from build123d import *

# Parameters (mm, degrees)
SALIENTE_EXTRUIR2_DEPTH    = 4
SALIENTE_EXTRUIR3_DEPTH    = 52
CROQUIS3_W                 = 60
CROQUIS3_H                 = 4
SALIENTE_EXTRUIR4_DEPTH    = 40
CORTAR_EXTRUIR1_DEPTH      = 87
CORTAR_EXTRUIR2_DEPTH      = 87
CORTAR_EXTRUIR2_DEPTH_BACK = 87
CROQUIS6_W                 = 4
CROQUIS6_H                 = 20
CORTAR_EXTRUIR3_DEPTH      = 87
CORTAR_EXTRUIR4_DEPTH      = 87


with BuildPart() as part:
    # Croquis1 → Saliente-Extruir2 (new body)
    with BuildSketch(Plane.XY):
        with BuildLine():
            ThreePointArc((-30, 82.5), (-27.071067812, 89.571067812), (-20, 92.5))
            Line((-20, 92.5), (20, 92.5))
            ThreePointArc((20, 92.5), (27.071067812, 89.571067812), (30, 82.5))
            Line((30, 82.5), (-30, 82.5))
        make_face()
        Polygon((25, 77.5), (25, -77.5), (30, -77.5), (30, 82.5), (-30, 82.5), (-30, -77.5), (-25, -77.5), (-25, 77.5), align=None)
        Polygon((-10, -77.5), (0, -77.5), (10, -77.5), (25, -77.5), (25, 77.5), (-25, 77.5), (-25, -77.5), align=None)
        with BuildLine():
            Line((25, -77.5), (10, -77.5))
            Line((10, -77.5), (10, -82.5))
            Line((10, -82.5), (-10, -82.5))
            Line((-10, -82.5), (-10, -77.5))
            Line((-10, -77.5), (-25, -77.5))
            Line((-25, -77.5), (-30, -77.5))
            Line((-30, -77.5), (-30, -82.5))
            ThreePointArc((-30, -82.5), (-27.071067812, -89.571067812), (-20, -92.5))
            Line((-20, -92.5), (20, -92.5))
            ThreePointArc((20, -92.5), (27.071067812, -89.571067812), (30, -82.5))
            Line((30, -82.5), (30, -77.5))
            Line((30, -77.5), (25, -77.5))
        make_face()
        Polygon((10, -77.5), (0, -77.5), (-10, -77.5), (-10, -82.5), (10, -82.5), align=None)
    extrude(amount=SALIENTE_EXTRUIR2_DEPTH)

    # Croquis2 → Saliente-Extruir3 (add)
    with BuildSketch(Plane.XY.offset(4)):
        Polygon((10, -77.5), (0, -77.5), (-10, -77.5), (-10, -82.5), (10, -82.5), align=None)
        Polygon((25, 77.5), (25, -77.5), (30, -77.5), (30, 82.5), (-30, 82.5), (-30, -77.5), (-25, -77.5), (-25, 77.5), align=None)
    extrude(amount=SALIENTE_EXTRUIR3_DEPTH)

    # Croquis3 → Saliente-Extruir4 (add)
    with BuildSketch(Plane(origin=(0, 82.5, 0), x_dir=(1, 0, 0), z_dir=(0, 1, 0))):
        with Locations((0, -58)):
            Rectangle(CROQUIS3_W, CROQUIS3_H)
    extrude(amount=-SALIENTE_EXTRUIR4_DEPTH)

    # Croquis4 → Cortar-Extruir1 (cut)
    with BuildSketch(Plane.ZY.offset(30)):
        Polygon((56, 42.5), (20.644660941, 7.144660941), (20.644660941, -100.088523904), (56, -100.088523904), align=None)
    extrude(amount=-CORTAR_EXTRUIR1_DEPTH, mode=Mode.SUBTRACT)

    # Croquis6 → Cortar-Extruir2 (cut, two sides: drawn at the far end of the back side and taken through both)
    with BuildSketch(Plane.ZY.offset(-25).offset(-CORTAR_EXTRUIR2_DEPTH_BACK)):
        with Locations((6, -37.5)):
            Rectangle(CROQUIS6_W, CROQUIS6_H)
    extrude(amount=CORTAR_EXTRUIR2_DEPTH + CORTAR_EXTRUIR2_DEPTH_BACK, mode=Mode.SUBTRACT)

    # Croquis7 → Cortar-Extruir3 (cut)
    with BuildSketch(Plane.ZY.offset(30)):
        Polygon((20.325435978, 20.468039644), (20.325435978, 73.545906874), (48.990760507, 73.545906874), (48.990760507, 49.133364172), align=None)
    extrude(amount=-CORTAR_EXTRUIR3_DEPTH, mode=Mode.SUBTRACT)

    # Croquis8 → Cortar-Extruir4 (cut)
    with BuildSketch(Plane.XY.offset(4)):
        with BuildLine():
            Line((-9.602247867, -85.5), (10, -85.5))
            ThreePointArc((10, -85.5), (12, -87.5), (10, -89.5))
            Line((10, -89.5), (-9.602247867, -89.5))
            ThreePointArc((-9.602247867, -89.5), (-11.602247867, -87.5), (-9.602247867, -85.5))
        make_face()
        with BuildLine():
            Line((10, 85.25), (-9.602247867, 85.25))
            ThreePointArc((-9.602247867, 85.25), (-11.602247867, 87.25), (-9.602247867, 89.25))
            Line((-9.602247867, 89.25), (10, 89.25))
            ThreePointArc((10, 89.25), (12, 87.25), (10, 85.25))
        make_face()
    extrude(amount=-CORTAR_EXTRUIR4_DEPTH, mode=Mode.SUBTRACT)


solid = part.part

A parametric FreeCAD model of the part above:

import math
import FreeCAD as App
import Part
import Sketcher
Q = App.Units.Quantity

doc = App.newDocument("Part")
body = doc.addObject("PartDesign::Body", "Body")

sketch1 = body.newObject("Sketcher::SketchObject", "Sketch")
sketch1.AttachmentSupport = (doc.getObject("XY_Plane"), [""])
sketch1.MapMode = "FlatFace"
sketch1.addGeometry(Part.ArcOfCircle(Part.Circle(App.Vector(-20, 82.5, 0), App.Vector(0, 0, 1), 10), math.radians(90), math.radians(180)), False)
sketch1.addGeometry(Part.LineSegment(App.Vector(-30, 82.5, 0), App.Vector(-30, -82.5, 0)), False)
sketch1.addGeometry(Part.ArcOfCircle(Part.Circle(App.Vector(-20, -82.5, 0), App.Vector(0, 0, 1), 10), math.radians(180), math.radians(270)), False)
sketch1.addGeometry(Part.LineSegment(App.Vector(-20, -92.5, 0), App.Vector(20, -92.5, 0)), False)
sketch1.addGeometry(Part.ArcOfCircle(Part.Circle(App.Vector(20, -82.5, 0), App.Vector(0, 0, 1), 10), math.radians(-90), math.radians(0)), False)
sketch1.addGeometry(Part.LineSegment(App.Vector(30, -82.5, 0), App.Vector(30, 82.5, 0)), False)
sketch1.addGeometry(Part.ArcOfCircle(Part.Circle(App.Vector(20, 82.5, 0), App.Vector(0, 0, 1), 10), math.radians(0), math.radians(90)), False)
sketch1.addGeometry(Part.LineSegment(App.Vector(20, 92.5, 0), App.Vector(-20, 92.5, 0)), False)
sketch1.addConstraint(Sketcher.Constraint("Tangent", 0, 2, 1, 1))
sketch1.addConstraint(Sketcher.Constraint("Tangent", 1, 2, 2, 1))
sketch1.addConstraint(Sketcher.Constraint("Tangent", 2, 2, 3, 1))
sketch1.addConstraint(Sketcher.Constraint("Tangent", 3, 2, 4, 1))
sketch1.addConstraint(Sketcher.Constraint("Tangent", 4, 2, 5, 1))
sketch1.addConstraint(Sketcher.Constraint("Tangent", 5, 2, 6, 1))
sketch1.addConstraint(Sketcher.Constraint("Tangent", 6, 2, 7, 1))
sketch1.addConstraint(Sketcher.Constraint("Tangent", 7, 2, 0, 1))
sketch1.addConstraint(Sketcher.Constraint("Vertical", 1))
sketch1.addConstraint(Sketcher.Constraint("Horizontal", 3))
sketch1.addConstraint(Sketcher.Constraint("Vertical", 5))
sketch1.addConstraint(Sketcher.Constraint("Horizontal", 7))
sketch1.addConstraint(Sketcher.Constraint("Equal", 0, 2))
sketch1.addConstraint(Sketcher.Constraint("Equal", 2, 4))
sketch1.addConstraint(Sketcher.Constraint("Equal", 4, 6))
sketch1.addConstraint(Sketcher.Constraint("Symmetric", 0, 3, 4, 3, -1, 1))
sketch1.addConstraint(Sketcher.Constraint("Radius", 0, 10.0))
sketch1.addConstraint(Sketcher.Constraint("DistanceX", 3, 1, 3, 2, 40.0))
sketch1.addConstraint(Sketcher.Constraint("DistanceY", 1, 2, 1, 1, 165.0))
pad1 = body.newObject("PartDesign::Pad", "Pad")
pad1.Profile = sketch1
pad1.Length = 4

sketch2 = body.newObject("Sketcher::SketchObject", "Sketch001")
sketch2.AttachmentSupport = (doc.getObject("XY_Plane"), [""])
sketch2.MapMode = "FlatFace"
sketch2.AttachmentOffset = App.Placement(App.Vector(0, 0, 4), App.Rotation())
sketch2.addGeometry(Part.LineSegment(App.Vector(10, -77.5, 0), App.Vector(-10, -77.5, 0)), False)
sketch2.addGeometry(Part.LineSegment(App.Vector(-10, -77.5, 0), App.Vector(-10, -82.5, 0)), False)
sketch2.addGeometry(Part.LineSegment(App.Vector(-10, -82.5, 0), App.Vector(10, -82.5, 0)), False)
sketch2.addGeometry(Part.LineSegment(App.Vector(10, -82.5, 0), App.Vector(10, -77.5, 0)), False)
sketch2.addGeometry(Part.LineSegment(App.Vector(25, 77.5, 0), App.Vector(25, -77.5, 0)), False)
sketch2.addGeometry(Part.LineSegment(App.Vector(25, -77.5, 0), App.Vector(30, -77.5, 0)), False)
sketch2.addGeometry(Part.LineSegment(App.Vector(30, -77.5, 0), App.Vector(30, 82.5, 0)), False)
sketch2.addGeometry(Part.LineSegment(App.Vector(30, 82.5, 0), App.Vector(-30, 82.5, 0)), False)
sketch2.addGeometry(Part.LineSegment(App.Vector(-30, 82.5, 0), App.Vector(-30, -77.5, 0)), False)
sketch2.addGeometry(Part.LineSegment(App.Vector(-30, -77.5, 0), App.Vector(-25, -77.5, 0)), False)
sketch2.addGeometry(Part.LineSegment(App.Vector(-25, -77.5, 0), App.Vector(-25, 77.5, 0)), False)
sketch2.addGeometry(Part.LineSegment(App.Vector(-25, 77.5, 0), App.Vector(25, 77.5, 0)), False)
sketch2.addConstraint(Sketcher.Constraint("Coincident", 0, 2, 1, 1))
sketch2.addConstraint(Sketcher.Constraint("Coincident", 1, 2, 2, 1))
sketch2.addConstraint(Sketcher.Constraint("Coincident", 2, 2, 3, 1))
sketch2.addConstraint(Sketcher.Constraint("Coincident", 3, 2, 0, 1))
sketch2.addConstraint(Sketcher.Constraint("Coincident", 4, 2, 5, 1))
sketch2.addConstraint(Sketcher.Constraint("Coincident", 5, 2, 6, 1))
sketch2.addConstraint(Sketcher.Constraint("Coincident", 6, 2, 7, 1))
sketch2.addConstraint(Sketcher.Constraint("Coincident", 7, 2, 8, 1))
sketch2.addConstraint(Sketcher.Constraint("Coincident", 8, 2, 9, 1))
sketch2.addConstraint(Sketcher.Constraint("Coincident", 9, 2, 10, 1))
sketch2.addConstraint(Sketcher.Constraint("Coincident", 10, 2, 11, 1))
sketch2.addConstraint(Sketcher.Constraint("Coincident", 11, 2, 4, 1))
sketch2.addConstraint(Sketcher.Constraint("Horizontal", 0))
sketch2.addConstraint(Sketcher.Constraint("Vertical", 1))
sketch2.addConstraint(Sketcher.Constraint("Horizontal", 2))
sketch2.addConstraint(Sketcher.Constraint("Vertical", 3))
sketch2.addConstraint(Sketcher.Constraint("Vertical", 4))
sketch2.addConstraint(Sketcher.Constraint("Horizontal", 5))
sketch2.addConstraint(Sketcher.Constraint("Vertical", 6))
sketch2.addConstraint(Sketcher.Constraint("Horizontal", 7))
sketch2.addConstraint(Sketcher.Constraint("Vertical", 8))
sketch2.addConstraint(Sketcher.Constraint("Horizontal", 9))
sketch2.addConstraint(Sketcher.Constraint("Vertical", 10))
sketch2.addConstraint(Sketcher.Constraint("Horizontal", 11))
sketch2.addConstraint(Sketcher.Constraint("Symmetric", 4, 2, 10, 2, -1, 1))
sketch2.addConstraint(Sketcher.Constraint("Symmetric", 5, 2, 8, 2, -2))
sketch2.addConstraint(Sketcher.Constraint("Horizontal", 3, 2, 4, 2))
sketch2.addConstraint(Sketcher.Constraint("Equal", 9, 1))
sketch2.addConstraint(Sketcher.Constraint("DistanceX", 0, 2, 0, 1, 20.0))
sketch2.addConstraint(Sketcher.Constraint("DistanceX", 5, 1, 5, 2, 5.0))
sketch2.addConstraint(Sketcher.Constraint("DistanceX", 7, 2, 7, 1, 60.0))
sketch2.addConstraint(Sketcher.Constraint("DistanceY", 4, 2, 4, 1, 155.0))
sketch2.addConstraint(Sketcher.Constraint("DistanceY", 6, 1, 6, 2, 160.0))
sketch2.addConstraint(Sketcher.Constraint("DistanceX", 0, 2, -1, 1, 10.0))
pad2 = body.newObject("PartDesign::Pad", "Pad001")
pad2.Profile = sketch2
pad2.Length = 52

sketch3 = body.newObject("Sketcher::SketchObject", "Sketch002")
sketch3.AttachmentSupport = (doc.getObject("XZ_Plane"), [""])
sketch3.MapMode = "FlatFace"
sketch3.AttachmentOffset = App.Placement(App.Vector(0, 0, -82.5), App.Rotation())
sketch3.addGeometry(Part.LineSegment(App.Vector(-30, 56, 0), App.Vector(-30, 60, 0)), False)
sketch3.addGeometry(Part.LineSegment(App.Vector(-30, 60, 0), App.Vector(30, 60, 0)), False)
sketch3.addGeometry(Part.LineSegment(App.Vector(30, 60, 0), App.Vector(30, 56, 0)), False)
sketch3.addGeometry(Part.LineSegment(App.Vector(30, 56, 0), App.Vector(-30, 56, 0)), False)
sketch3.addConstraint(Sketcher.Constraint("Coincident", 0, 2, 1, 1))
sketch3.addConstraint(Sketcher.Constraint("Coincident", 1, 2, 2, 1))
sketch3.addConstraint(Sketcher.Constraint("Coincident", 2, 2, 3, 1))
sketch3.addConstraint(Sketcher.Constraint("Coincident", 3, 2, 0, 1))
sketch3.addConstraint(Sketcher.Constraint("Vertical", 0))
sketch3.addConstraint(Sketcher.Constraint("Horizontal", 1))
sketch3.addConstraint(Sketcher.Constraint("Vertical", 2))
sketch3.addConstraint(Sketcher.Constraint("Horizontal", 3))
sketch3.addConstraint(Sketcher.Constraint("DistanceX", 1, 1, 1, 2, 60.0))
sketch3.addConstraint(Sketcher.Constraint("DistanceY", 0, 1, 0, 2, 4.0))
sketch3.addConstraint(Sketcher.Constraint("DistanceX", 0, 2, -1, 1, 30.0))
sketch3.addConstraint(Sketcher.Constraint("DistanceY", -1, 1, 0, 2, 60.0))
pad3 = body.newObject("PartDesign::Pad", "Pad002")
pad3.Profile = sketch3
pad3.Length = 40

sketch4 = body.newObject("Sketcher::SketchObject", "Sketch003")
sketch4.AttachmentSupport = (doc.getObject("YZ_Plane"), [""])
sketch4.MapMode = "FlatFace"
sketch4.AttachmentOffset = App.Placement(App.Vector(0, 0, -30), App.Rotation())
sketch4.addGeometry(Part.LineSegment(App.Vector(42.5, 56, 0), App.Vector(7.144661, 20.644661, 0)), False)
sketch4.addGeometry(Part.LineSegment(App.Vector(7.144661, 20.644661, 0), App.Vector(-100.088524, 20.644661, 0)), False)
sketch4.addGeometry(Part.LineSegment(App.Vector(-100.088524, 20.644661, 0), App.Vector(-100.088524, 56, 0)), False)
sketch4.addGeometry(Part.LineSegment(App.Vector(-100.088524, 56, 0), App.Vector(42.5, 56, 0)), False)
sketch4.addConstraint(Sketcher.Constraint("Coincident", 0, 2, 1, 1))
sketch4.addConstraint(Sketcher.Constraint("Coincident", 1, 2, 2, 1))
sketch4.addConstraint(Sketcher.Constraint("Coincident", 2, 2, 3, 1))
sketch4.addConstraint(Sketcher.Constraint("Coincident", 3, 2, 0, 1))
sketch4.addConstraint(Sketcher.Constraint("Horizontal", 1))
sketch4.addConstraint(Sketcher.Constraint("Vertical", 2))
sketch4.addConstraint(Sketcher.Constraint("Horizontal", 3))
sketch4.addConstraint(Sketcher.Constraint("Angle", 0, Q("-135 deg")))
sketch4.addConstraint(Sketcher.Constraint("Distance", 0, 50.0))
sketch4.addConstraint(Sketcher.Constraint("DistanceY", -1, 1, 2, 2, 56.0))
sketch4.addConstraint(Sketcher.Constraint("DistanceX", -1, 1, 3, 2, 42.5))
sketch4.addConstraint(Sketcher.Constraint("DistanceX", 1, 2, 1, 1, 107.233185))
pocket1 = body.newObject("PartDesign::Pocket", "Pocket")
pocket1.Profile = sketch4
pocket1.Length = 87
pocket1.Reversed = True

sketch5 = body.newObject("Sketcher::SketchObject", "Sketch004")
sketch5.AttachmentSupport = (doc.getObject("YZ_Plane"), [""])
sketch5.MapMode = "FlatFace"
sketch5.AttachmentOffset = App.Placement(App.Vector(0, 0, 25), App.Rotation())
sketch5.addGeometry(Part.LineSegment(App.Vector(-27.5, 4, 0), App.Vector(-47.5, 4, 0)), False)
sketch5.addGeometry(Part.LineSegment(App.Vector(-47.5, 4, 0), App.Vector(-47.5, 8, 0)), False)
sketch5.addGeometry(Part.LineSegment(App.Vector(-47.5, 8, 0), App.Vector(-27.5, 8, 0)), False)
sketch5.addGeometry(Part.LineSegment(App.Vector(-27.5, 8, 0), App.Vector(-27.5, 4, 0)), False)
sketch5.addConstraint(Sketcher.Constraint("Coincident", 0, 2, 1, 1))
sketch5.addConstraint(Sketcher.Constraint("Coincident", 1, 2, 2, 1))
sketch5.addConstraint(Sketcher.Constraint("Coincident", 2, 2, 3, 1))
sketch5.addConstraint(Sketcher.Constraint("Coincident", 3, 2, 0, 1))
sketch5.addConstraint(Sketcher.Constraint("Horizontal", 0))
sketch5.addConstraint(Sketcher.Constraint("Vertical", 1))
sketch5.addConstraint(Sketcher.Constraint("Horizontal", 2))
sketch5.addConstraint(Sketcher.Constraint("Vertical", 3))
sketch5.addConstraint(Sketcher.Constraint("DistanceX", 0, 2, 0, 1, 20.0))
sketch5.addConstraint(Sketcher.Constraint("DistanceY", 1, 1, 1, 2, 4.0))
sketch5.addConstraint(Sketcher.Constraint("DistanceY", -1, 1, 0, 2, 4.0))
sketch5.addConstraint(Sketcher.Constraint("DistanceX", 0, 2, -1, 1, 47.5))
pocket2 = body.newObject("PartDesign::Pocket", "Pocket001")
pocket2.Profile = sketch5
pocket2.Type = "ThroughAll"
pocket2.Midplane = True

sketch6 = body.newObject("Sketcher::SketchObject", "Sketch005")
sketch6.AttachmentSupport = (doc.getObject("YZ_Plane"), [""])
sketch6.MapMode = "FlatFace"
sketch6.AttachmentOffset = App.Placement(App.Vector(0, 0, -30), App.Rotation())
sketch6.addGeometry(Part.LineSegment(App.Vector(73.545907, 20.325436, 0), App.Vector(20.46804, 20.325436, 0)), False)
sketch6.addGeometry(Part.LineSegment(App.Vector(20.46804, 20.325436, 0), App.Vector(49.133364, 48.990761, 0)), False)
sketch6.addGeometry(Part.LineSegment(App.Vector(49.133364, 48.990761, 0), App.Vector(73.545907, 48.990761, 0)), False)
sketch6.addGeometry(Part.LineSegment(App.Vector(73.545907, 48.990761, 0), App.Vector(73.545907, 20.325436, 0)), False)
sketch6.addConstraint(Sketcher.Constraint("Coincident", 0, 2, 1, 1))
sketch6.addConstraint(Sketcher.Constraint("Coincident", 1, 2, 2, 1))
sketch6.addConstraint(Sketcher.Constraint("Coincident", 2, 2, 3, 1))
sketch6.addConstraint(Sketcher.Constraint("Coincident", 3, 2, 0, 1))
sketch6.addConstraint(Sketcher.Constraint("Horizontal", 0))
sketch6.addConstraint(Sketcher.Constraint("Horizontal", 2))
sketch6.addConstraint(Sketcher.Constraint("Vertical", 3))
sketch6.addConstraint(Sketcher.Constraint("Angle", 1, Q("45 deg")))
sketch6.addConstraint(Sketcher.Constraint("Distance", 1, 40.538891))
sketch6.addConstraint(Sketcher.Constraint("DistanceX", 0, 2, 0, 1, 53.077867))
sketch6.addConstraint(Sketcher.Constraint("DistanceX", -1, 1, 0, 2, 20.46804))
sketch6.addConstraint(Sketcher.Constraint("DistanceY", -1, 1, 1, 2, 48.990761))
pocket3 = body.newObject("PartDesign::Pocket", "Pocket002")
pocket3.Profile = sketch6
pocket3.Length = 87
pocket3.Reversed = True

sketch7 = body.newObject("Sketcher::SketchObject", "Sketch006")
sketch7.AttachmentSupport = (doc.getObject("XY_Plane"), [""])
sketch7.MapMode = "FlatFace"
sketch7.AttachmentOffset = App.Placement(App.Vector(0, 0, 4), App.Rotation())
sketch7.addGeometry(Part.LineSegment(App.Vector(10, -85.5, 0), App.Vector(-9.602248, -85.5, 0)), False)
sketch7.addGeometry(Part.ArcOfCircle(Part.Circle(App.Vector(-9.602248, -87.5, 0), App.Vector(0, 0, 1), 2), math.radians(90), math.radians(270)), False)
sketch7.addGeometry(Part.LineSegment(App.Vector(-9.602248, -89.5, 0), App.Vector(10, -89.5, 0)), False)
sketch7.addGeometry(Part.ArcOfCircle(Part.Circle(App.Vector(10, -87.5, 0), App.Vector(0, 0, 1), 2), math.radians(-90), math.radians(90)), False)
sketch7.addGeometry(Part.LineSegment(App.Vector(-9.602248, 85.25, 0), App.Vector(10, 85.25, 0)), False)
sketch7.addGeometry(Part.ArcOfCircle(Part.Circle(App.Vector(10, 87.25, 0), App.Vector(0, 0, 1), 2), math.radians(-90), math.radians(90)), False)
sketch7.addGeometry(Part.LineSegment(App.Vector(10, 89.25, 0), App.Vector(-9.602248, 89.25, 0)), False)
sketch7.addGeometry(Part.ArcOfCircle(Part.Circle(App.Vector(-9.602248, 87.25, 0), App.Vector(0, 0, 1), 2), math.radians(90), math.radians(270)), False)
sketch7.addConstraint(Sketcher.Constraint("Tangent", 0, 2, 1, 1))
sketch7.addConstraint(Sketcher.Constraint("Tangent", 1, 2, 2, 1))
sketch7.addConstraint(Sketcher.Constraint("Tangent", 2, 2, 3, 1))
sketch7.addConstraint(Sketcher.Constraint("Tangent", 3, 2, 0, 1))
sketch7.addConstraint(Sketcher.Constraint("Tangent", 4, 2, 5, 1))
sketch7.addConstraint(Sketcher.Constraint("Tangent", 5, 2, 6, 1))
sketch7.addConstraint(Sketcher.Constraint("Tangent", 6, 2, 7, 1))
sketch7.addConstraint(Sketcher.Constraint("Tangent", 7, 2, 4, 1))
sketch7.addConstraint(Sketcher.Constraint("Horizontal", 0))
sketch7.addConstraint(Sketcher.Constraint("Horizontal", 2))
sketch7.addConstraint(Sketcher.Constraint("Horizontal", 4))
sketch7.addConstraint(Sketcher.Constraint("Horizontal", 6))
sketch7.addConstraint(Sketcher.Constraint("Equal", 3, 5))
sketch7.addConstraint(Sketcher.Constraint("Vertical", 3, 3, 5, 3))
sketch7.addConstraint(Sketcher.Constraint("Vertical", 1, 3, 7, 3))
sketch7.addConstraint(Sketcher.Constraint("Radius", 1, 2.0))
sketch7.addConstraint(Sketcher.Constraint("DistanceX", -1, 1, 3, 3, 10.0))
sketch7.addConstraint(Sketcher.Constraint("DistanceY", 1, 3, -1, 1, 87.5))
sketch7.addConstraint(Sketcher.Constraint("DistanceY", -1, 1, 5, 3, 87.25))
sketch7.addConstraint(Sketcher.Constraint("DistanceX", 0, 2, 0, 1, 19.602248))
pocket4 = body.newObject("PartDesign::Pocket", "Pocket003")
pocket4.Profile = sketch7
pocket4.Length = 87

doc.recompute()
